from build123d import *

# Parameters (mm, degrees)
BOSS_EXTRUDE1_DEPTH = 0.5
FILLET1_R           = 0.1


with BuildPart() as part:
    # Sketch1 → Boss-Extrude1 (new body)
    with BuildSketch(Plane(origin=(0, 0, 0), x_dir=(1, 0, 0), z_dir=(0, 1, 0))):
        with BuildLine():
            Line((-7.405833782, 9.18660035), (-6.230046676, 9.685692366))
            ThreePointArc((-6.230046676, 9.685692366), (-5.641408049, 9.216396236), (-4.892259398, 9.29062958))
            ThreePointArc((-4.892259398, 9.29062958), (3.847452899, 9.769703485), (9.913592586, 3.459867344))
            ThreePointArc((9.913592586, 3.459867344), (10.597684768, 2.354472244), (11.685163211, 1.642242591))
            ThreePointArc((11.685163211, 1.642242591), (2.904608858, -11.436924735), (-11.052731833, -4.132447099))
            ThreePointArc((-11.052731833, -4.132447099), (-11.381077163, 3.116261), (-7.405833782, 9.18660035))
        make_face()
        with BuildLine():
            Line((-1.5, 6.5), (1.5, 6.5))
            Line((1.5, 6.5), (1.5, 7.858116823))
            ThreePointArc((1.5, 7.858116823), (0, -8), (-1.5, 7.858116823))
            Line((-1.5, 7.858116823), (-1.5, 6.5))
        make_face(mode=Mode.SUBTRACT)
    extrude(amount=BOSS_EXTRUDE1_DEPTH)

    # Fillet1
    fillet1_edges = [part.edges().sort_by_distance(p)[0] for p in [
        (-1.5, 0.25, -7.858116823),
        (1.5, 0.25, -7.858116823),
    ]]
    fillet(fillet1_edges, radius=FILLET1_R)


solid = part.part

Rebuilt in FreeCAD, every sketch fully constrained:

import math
import FreeCAD as App
import Part
import Sketcher
Q = App.Units.Quantity


def edges_at(feature, points):
    """Names of the edges that pass closest to the given points."""
    edges = feature.Shape.Edges
    near = lambda p: min(range(len(edges)), key=lambda i: edges[i].distToShape(Part.Vertex(*p))[0])
    return sorted({f"Edge{near(p) + 1}" for p in points})

doc = App.newDocument("Part")
body = doc.addObject("PartDesign::Body", "Body")

# Sketch on XZ plane
sketch1 = doc.addObject("Sketcher::SketchObject", "Sketch")
body.addObject(sketch1)
sketch1.AttachmentSupport = (doc.XZ_Plane, [""])
sketch1.MapMode = "FlatFace"
sketch1.addGeometry(Part.LineSegment(App.Vector(-6.2, -9.7, 0), App.Vector(-7.4, -9.2, 0)), False)
sketch1.addGeometry(Part.ArcOfCircle(Part.Circle(App.Vector(0, 0, 0), App.Vector(0, 0, 1), 11.8), math.radians(159), math.radians(231)), False)
sketch1.addGeometry(Part.ArcOfCircle(Part.Circle(App.Vector(0, 0, 0), App.Vector(0, 0, 1), 11.8), math.radians(-8), math.radians(160)), False)
sketch1.addGeometry(Part.ArcOfCircle(Part.Circle(App.Vector(12.7, -4.4, 0), App.Vector(0, 0, 1), 3), math.radians(111), math.radians(161)), False)
sketch1.addGeometry(Part.ArcOfCircle(Part.Circle(App.Vector(0, 0, 0), App.Vector(0, 0, 1), 10.5), math.radians(-118), math.radians(-19)), False)
sketch1.addGeometry(Part.ArcOfCircle(Part.Circle(App.Vector(-5.4, -10.2, 0), App.Vector(0, 0, 1), 1), math.radians(62), math.radians(151)), False)
sketch1.addGeometry(Part.LineSegment(App.Vector(-1.5, -6.5, 0), App.Vector(1.5, -6.5, 0)), False)
sketch1.addGeometry(Part.LineSegment(App.Vector(1.5, -6.5, 0), App.Vector(1.5, -7.9, 0)), False)
sketch1.addGeometry(Part.ArcOfCircle(Part.Circle(App.Vector(0, 0, 0), App.Vector(0, 0, 1), 8), math.radians(-79), math.radians(259)), False)
sketch1.addGeometry(Part.LineSegment(App.Vector(-1.5, -7.9, 0), App.Vector(-1.5, -6.5, 0)), False)
sketch1.addConstraint(Sketcher.Constraint("Coincident", 0, 2, 1, 2))
sketch1.addConstraint(Sketcher.Constraint("Tangent", 1, 1, 2, 2))
sketch1.addConstraint(Sketcher.Constraint("Coincident", 2, 1, 3, 1))
sketch1.addConstraint(Sketcher.Constraint("Tangent", 3, 2, 4, 2))
sketch1.addConstraint(Sketcher.Constraint("Tangent", 4, 1, 5, 1))
sketch1.addConstraint(Sketcher.Constraint("Coincident", 5, 2, 0, 1))
sketch1.addConstraint(Sketcher.Constraint("Coincident", 6, 2, 7, 1))
sketch1.addConstraint(Sketcher.Constraint("Coincident", 7, 2, 8, 1))
sketch1.addConstraint(Sketcher.Constraint("Coincident", 8, 2, 9, 1))
sketch1.addConstraint(Sketcher.Constraint("Coincident", 9, 2, 6, 1))
sketch1.addConstraint(Sketcher.Constraint("Horizontal", 6))
sketch1.addConstraint(Sketcher.Constraint("Vertical", 7))
sketch1.addConstraint(Sketcher.Constraint("Vertical", 9))
sketch1.addConstraint(Sketcher.Constraint("Coincident", 1, 3, -1, 1))
sketch1.addConstraint(Sketcher.Constraint("Coincident", 4, 3, -1, 1))
sketch1.addConstraint(Sketcher.Constraint("Coincident", 8, 3, -1, 1))
sketch1.addConstraint(Sketcher.Constraint("Equal", 1, 2))
sketch1.addConstraint(Sketcher.Constraint("Horizontal", 7, 2, 8, 2))
sketch1.addConstraint(Sketcher.Constraint("Radius", 3, 3.0))
sketch1.addConstraint(Sketcher.Constraint("Radius", 5, 1.0))
sketch1.addConstraint(Sketcher.Constraint("Radius", 8, 8.0))
sketch1.addConstraint(Sketcher.Constraint("Radius", 1, 11.8))
sketch1.addConstraint(Sketcher.Constraint("Radius", 4, 10.5))
sketch1.addConstraint(Sketcher.Constraint("DistanceX", 6, 1, 6, 2, 3.0))
sketch1.addConstraint(Sketcher.Constraint("Angle", 0, Q("157 deg")))
sketch1.addConstraint(Sketcher.Constraint("DistanceY", 6, 2, -1, 1, 6.5))
sketch1.addConstraint(Sketcher.Constraint("DistanceY", 3, 3, -1, 1, 4.448401))
sketch1.addConstraint(Sketcher.Constraint("DistanceY", 0, 2, -1, 1, 9.1866))
sketch1.addConstraint(Sketcher.Constraint("DistanceX", 1, 1, 0, 2, 3.646898))
sketch1.addConstraint(Sketcher.Constraint("Distance", 0, 1.277329))
pad1 = doc.addObject("PartDesign::Pad", "Pad")
body.addObject(pad1)
pad1.Profile = sketch1
pad1.Length = 0.5
pad1.Reversed = True
doc.recompute()

fillet = doc.addObject("PartDesign::Fillet", "Fillet")
body.addObject(fillet)
fillet.Base = (pad1, edges_at(pad1, [(-1.5, 0.25, -7.858), (1.5, 0.25, -7.858)]))
fillet.Radius = 0.1

doc.recompute()
